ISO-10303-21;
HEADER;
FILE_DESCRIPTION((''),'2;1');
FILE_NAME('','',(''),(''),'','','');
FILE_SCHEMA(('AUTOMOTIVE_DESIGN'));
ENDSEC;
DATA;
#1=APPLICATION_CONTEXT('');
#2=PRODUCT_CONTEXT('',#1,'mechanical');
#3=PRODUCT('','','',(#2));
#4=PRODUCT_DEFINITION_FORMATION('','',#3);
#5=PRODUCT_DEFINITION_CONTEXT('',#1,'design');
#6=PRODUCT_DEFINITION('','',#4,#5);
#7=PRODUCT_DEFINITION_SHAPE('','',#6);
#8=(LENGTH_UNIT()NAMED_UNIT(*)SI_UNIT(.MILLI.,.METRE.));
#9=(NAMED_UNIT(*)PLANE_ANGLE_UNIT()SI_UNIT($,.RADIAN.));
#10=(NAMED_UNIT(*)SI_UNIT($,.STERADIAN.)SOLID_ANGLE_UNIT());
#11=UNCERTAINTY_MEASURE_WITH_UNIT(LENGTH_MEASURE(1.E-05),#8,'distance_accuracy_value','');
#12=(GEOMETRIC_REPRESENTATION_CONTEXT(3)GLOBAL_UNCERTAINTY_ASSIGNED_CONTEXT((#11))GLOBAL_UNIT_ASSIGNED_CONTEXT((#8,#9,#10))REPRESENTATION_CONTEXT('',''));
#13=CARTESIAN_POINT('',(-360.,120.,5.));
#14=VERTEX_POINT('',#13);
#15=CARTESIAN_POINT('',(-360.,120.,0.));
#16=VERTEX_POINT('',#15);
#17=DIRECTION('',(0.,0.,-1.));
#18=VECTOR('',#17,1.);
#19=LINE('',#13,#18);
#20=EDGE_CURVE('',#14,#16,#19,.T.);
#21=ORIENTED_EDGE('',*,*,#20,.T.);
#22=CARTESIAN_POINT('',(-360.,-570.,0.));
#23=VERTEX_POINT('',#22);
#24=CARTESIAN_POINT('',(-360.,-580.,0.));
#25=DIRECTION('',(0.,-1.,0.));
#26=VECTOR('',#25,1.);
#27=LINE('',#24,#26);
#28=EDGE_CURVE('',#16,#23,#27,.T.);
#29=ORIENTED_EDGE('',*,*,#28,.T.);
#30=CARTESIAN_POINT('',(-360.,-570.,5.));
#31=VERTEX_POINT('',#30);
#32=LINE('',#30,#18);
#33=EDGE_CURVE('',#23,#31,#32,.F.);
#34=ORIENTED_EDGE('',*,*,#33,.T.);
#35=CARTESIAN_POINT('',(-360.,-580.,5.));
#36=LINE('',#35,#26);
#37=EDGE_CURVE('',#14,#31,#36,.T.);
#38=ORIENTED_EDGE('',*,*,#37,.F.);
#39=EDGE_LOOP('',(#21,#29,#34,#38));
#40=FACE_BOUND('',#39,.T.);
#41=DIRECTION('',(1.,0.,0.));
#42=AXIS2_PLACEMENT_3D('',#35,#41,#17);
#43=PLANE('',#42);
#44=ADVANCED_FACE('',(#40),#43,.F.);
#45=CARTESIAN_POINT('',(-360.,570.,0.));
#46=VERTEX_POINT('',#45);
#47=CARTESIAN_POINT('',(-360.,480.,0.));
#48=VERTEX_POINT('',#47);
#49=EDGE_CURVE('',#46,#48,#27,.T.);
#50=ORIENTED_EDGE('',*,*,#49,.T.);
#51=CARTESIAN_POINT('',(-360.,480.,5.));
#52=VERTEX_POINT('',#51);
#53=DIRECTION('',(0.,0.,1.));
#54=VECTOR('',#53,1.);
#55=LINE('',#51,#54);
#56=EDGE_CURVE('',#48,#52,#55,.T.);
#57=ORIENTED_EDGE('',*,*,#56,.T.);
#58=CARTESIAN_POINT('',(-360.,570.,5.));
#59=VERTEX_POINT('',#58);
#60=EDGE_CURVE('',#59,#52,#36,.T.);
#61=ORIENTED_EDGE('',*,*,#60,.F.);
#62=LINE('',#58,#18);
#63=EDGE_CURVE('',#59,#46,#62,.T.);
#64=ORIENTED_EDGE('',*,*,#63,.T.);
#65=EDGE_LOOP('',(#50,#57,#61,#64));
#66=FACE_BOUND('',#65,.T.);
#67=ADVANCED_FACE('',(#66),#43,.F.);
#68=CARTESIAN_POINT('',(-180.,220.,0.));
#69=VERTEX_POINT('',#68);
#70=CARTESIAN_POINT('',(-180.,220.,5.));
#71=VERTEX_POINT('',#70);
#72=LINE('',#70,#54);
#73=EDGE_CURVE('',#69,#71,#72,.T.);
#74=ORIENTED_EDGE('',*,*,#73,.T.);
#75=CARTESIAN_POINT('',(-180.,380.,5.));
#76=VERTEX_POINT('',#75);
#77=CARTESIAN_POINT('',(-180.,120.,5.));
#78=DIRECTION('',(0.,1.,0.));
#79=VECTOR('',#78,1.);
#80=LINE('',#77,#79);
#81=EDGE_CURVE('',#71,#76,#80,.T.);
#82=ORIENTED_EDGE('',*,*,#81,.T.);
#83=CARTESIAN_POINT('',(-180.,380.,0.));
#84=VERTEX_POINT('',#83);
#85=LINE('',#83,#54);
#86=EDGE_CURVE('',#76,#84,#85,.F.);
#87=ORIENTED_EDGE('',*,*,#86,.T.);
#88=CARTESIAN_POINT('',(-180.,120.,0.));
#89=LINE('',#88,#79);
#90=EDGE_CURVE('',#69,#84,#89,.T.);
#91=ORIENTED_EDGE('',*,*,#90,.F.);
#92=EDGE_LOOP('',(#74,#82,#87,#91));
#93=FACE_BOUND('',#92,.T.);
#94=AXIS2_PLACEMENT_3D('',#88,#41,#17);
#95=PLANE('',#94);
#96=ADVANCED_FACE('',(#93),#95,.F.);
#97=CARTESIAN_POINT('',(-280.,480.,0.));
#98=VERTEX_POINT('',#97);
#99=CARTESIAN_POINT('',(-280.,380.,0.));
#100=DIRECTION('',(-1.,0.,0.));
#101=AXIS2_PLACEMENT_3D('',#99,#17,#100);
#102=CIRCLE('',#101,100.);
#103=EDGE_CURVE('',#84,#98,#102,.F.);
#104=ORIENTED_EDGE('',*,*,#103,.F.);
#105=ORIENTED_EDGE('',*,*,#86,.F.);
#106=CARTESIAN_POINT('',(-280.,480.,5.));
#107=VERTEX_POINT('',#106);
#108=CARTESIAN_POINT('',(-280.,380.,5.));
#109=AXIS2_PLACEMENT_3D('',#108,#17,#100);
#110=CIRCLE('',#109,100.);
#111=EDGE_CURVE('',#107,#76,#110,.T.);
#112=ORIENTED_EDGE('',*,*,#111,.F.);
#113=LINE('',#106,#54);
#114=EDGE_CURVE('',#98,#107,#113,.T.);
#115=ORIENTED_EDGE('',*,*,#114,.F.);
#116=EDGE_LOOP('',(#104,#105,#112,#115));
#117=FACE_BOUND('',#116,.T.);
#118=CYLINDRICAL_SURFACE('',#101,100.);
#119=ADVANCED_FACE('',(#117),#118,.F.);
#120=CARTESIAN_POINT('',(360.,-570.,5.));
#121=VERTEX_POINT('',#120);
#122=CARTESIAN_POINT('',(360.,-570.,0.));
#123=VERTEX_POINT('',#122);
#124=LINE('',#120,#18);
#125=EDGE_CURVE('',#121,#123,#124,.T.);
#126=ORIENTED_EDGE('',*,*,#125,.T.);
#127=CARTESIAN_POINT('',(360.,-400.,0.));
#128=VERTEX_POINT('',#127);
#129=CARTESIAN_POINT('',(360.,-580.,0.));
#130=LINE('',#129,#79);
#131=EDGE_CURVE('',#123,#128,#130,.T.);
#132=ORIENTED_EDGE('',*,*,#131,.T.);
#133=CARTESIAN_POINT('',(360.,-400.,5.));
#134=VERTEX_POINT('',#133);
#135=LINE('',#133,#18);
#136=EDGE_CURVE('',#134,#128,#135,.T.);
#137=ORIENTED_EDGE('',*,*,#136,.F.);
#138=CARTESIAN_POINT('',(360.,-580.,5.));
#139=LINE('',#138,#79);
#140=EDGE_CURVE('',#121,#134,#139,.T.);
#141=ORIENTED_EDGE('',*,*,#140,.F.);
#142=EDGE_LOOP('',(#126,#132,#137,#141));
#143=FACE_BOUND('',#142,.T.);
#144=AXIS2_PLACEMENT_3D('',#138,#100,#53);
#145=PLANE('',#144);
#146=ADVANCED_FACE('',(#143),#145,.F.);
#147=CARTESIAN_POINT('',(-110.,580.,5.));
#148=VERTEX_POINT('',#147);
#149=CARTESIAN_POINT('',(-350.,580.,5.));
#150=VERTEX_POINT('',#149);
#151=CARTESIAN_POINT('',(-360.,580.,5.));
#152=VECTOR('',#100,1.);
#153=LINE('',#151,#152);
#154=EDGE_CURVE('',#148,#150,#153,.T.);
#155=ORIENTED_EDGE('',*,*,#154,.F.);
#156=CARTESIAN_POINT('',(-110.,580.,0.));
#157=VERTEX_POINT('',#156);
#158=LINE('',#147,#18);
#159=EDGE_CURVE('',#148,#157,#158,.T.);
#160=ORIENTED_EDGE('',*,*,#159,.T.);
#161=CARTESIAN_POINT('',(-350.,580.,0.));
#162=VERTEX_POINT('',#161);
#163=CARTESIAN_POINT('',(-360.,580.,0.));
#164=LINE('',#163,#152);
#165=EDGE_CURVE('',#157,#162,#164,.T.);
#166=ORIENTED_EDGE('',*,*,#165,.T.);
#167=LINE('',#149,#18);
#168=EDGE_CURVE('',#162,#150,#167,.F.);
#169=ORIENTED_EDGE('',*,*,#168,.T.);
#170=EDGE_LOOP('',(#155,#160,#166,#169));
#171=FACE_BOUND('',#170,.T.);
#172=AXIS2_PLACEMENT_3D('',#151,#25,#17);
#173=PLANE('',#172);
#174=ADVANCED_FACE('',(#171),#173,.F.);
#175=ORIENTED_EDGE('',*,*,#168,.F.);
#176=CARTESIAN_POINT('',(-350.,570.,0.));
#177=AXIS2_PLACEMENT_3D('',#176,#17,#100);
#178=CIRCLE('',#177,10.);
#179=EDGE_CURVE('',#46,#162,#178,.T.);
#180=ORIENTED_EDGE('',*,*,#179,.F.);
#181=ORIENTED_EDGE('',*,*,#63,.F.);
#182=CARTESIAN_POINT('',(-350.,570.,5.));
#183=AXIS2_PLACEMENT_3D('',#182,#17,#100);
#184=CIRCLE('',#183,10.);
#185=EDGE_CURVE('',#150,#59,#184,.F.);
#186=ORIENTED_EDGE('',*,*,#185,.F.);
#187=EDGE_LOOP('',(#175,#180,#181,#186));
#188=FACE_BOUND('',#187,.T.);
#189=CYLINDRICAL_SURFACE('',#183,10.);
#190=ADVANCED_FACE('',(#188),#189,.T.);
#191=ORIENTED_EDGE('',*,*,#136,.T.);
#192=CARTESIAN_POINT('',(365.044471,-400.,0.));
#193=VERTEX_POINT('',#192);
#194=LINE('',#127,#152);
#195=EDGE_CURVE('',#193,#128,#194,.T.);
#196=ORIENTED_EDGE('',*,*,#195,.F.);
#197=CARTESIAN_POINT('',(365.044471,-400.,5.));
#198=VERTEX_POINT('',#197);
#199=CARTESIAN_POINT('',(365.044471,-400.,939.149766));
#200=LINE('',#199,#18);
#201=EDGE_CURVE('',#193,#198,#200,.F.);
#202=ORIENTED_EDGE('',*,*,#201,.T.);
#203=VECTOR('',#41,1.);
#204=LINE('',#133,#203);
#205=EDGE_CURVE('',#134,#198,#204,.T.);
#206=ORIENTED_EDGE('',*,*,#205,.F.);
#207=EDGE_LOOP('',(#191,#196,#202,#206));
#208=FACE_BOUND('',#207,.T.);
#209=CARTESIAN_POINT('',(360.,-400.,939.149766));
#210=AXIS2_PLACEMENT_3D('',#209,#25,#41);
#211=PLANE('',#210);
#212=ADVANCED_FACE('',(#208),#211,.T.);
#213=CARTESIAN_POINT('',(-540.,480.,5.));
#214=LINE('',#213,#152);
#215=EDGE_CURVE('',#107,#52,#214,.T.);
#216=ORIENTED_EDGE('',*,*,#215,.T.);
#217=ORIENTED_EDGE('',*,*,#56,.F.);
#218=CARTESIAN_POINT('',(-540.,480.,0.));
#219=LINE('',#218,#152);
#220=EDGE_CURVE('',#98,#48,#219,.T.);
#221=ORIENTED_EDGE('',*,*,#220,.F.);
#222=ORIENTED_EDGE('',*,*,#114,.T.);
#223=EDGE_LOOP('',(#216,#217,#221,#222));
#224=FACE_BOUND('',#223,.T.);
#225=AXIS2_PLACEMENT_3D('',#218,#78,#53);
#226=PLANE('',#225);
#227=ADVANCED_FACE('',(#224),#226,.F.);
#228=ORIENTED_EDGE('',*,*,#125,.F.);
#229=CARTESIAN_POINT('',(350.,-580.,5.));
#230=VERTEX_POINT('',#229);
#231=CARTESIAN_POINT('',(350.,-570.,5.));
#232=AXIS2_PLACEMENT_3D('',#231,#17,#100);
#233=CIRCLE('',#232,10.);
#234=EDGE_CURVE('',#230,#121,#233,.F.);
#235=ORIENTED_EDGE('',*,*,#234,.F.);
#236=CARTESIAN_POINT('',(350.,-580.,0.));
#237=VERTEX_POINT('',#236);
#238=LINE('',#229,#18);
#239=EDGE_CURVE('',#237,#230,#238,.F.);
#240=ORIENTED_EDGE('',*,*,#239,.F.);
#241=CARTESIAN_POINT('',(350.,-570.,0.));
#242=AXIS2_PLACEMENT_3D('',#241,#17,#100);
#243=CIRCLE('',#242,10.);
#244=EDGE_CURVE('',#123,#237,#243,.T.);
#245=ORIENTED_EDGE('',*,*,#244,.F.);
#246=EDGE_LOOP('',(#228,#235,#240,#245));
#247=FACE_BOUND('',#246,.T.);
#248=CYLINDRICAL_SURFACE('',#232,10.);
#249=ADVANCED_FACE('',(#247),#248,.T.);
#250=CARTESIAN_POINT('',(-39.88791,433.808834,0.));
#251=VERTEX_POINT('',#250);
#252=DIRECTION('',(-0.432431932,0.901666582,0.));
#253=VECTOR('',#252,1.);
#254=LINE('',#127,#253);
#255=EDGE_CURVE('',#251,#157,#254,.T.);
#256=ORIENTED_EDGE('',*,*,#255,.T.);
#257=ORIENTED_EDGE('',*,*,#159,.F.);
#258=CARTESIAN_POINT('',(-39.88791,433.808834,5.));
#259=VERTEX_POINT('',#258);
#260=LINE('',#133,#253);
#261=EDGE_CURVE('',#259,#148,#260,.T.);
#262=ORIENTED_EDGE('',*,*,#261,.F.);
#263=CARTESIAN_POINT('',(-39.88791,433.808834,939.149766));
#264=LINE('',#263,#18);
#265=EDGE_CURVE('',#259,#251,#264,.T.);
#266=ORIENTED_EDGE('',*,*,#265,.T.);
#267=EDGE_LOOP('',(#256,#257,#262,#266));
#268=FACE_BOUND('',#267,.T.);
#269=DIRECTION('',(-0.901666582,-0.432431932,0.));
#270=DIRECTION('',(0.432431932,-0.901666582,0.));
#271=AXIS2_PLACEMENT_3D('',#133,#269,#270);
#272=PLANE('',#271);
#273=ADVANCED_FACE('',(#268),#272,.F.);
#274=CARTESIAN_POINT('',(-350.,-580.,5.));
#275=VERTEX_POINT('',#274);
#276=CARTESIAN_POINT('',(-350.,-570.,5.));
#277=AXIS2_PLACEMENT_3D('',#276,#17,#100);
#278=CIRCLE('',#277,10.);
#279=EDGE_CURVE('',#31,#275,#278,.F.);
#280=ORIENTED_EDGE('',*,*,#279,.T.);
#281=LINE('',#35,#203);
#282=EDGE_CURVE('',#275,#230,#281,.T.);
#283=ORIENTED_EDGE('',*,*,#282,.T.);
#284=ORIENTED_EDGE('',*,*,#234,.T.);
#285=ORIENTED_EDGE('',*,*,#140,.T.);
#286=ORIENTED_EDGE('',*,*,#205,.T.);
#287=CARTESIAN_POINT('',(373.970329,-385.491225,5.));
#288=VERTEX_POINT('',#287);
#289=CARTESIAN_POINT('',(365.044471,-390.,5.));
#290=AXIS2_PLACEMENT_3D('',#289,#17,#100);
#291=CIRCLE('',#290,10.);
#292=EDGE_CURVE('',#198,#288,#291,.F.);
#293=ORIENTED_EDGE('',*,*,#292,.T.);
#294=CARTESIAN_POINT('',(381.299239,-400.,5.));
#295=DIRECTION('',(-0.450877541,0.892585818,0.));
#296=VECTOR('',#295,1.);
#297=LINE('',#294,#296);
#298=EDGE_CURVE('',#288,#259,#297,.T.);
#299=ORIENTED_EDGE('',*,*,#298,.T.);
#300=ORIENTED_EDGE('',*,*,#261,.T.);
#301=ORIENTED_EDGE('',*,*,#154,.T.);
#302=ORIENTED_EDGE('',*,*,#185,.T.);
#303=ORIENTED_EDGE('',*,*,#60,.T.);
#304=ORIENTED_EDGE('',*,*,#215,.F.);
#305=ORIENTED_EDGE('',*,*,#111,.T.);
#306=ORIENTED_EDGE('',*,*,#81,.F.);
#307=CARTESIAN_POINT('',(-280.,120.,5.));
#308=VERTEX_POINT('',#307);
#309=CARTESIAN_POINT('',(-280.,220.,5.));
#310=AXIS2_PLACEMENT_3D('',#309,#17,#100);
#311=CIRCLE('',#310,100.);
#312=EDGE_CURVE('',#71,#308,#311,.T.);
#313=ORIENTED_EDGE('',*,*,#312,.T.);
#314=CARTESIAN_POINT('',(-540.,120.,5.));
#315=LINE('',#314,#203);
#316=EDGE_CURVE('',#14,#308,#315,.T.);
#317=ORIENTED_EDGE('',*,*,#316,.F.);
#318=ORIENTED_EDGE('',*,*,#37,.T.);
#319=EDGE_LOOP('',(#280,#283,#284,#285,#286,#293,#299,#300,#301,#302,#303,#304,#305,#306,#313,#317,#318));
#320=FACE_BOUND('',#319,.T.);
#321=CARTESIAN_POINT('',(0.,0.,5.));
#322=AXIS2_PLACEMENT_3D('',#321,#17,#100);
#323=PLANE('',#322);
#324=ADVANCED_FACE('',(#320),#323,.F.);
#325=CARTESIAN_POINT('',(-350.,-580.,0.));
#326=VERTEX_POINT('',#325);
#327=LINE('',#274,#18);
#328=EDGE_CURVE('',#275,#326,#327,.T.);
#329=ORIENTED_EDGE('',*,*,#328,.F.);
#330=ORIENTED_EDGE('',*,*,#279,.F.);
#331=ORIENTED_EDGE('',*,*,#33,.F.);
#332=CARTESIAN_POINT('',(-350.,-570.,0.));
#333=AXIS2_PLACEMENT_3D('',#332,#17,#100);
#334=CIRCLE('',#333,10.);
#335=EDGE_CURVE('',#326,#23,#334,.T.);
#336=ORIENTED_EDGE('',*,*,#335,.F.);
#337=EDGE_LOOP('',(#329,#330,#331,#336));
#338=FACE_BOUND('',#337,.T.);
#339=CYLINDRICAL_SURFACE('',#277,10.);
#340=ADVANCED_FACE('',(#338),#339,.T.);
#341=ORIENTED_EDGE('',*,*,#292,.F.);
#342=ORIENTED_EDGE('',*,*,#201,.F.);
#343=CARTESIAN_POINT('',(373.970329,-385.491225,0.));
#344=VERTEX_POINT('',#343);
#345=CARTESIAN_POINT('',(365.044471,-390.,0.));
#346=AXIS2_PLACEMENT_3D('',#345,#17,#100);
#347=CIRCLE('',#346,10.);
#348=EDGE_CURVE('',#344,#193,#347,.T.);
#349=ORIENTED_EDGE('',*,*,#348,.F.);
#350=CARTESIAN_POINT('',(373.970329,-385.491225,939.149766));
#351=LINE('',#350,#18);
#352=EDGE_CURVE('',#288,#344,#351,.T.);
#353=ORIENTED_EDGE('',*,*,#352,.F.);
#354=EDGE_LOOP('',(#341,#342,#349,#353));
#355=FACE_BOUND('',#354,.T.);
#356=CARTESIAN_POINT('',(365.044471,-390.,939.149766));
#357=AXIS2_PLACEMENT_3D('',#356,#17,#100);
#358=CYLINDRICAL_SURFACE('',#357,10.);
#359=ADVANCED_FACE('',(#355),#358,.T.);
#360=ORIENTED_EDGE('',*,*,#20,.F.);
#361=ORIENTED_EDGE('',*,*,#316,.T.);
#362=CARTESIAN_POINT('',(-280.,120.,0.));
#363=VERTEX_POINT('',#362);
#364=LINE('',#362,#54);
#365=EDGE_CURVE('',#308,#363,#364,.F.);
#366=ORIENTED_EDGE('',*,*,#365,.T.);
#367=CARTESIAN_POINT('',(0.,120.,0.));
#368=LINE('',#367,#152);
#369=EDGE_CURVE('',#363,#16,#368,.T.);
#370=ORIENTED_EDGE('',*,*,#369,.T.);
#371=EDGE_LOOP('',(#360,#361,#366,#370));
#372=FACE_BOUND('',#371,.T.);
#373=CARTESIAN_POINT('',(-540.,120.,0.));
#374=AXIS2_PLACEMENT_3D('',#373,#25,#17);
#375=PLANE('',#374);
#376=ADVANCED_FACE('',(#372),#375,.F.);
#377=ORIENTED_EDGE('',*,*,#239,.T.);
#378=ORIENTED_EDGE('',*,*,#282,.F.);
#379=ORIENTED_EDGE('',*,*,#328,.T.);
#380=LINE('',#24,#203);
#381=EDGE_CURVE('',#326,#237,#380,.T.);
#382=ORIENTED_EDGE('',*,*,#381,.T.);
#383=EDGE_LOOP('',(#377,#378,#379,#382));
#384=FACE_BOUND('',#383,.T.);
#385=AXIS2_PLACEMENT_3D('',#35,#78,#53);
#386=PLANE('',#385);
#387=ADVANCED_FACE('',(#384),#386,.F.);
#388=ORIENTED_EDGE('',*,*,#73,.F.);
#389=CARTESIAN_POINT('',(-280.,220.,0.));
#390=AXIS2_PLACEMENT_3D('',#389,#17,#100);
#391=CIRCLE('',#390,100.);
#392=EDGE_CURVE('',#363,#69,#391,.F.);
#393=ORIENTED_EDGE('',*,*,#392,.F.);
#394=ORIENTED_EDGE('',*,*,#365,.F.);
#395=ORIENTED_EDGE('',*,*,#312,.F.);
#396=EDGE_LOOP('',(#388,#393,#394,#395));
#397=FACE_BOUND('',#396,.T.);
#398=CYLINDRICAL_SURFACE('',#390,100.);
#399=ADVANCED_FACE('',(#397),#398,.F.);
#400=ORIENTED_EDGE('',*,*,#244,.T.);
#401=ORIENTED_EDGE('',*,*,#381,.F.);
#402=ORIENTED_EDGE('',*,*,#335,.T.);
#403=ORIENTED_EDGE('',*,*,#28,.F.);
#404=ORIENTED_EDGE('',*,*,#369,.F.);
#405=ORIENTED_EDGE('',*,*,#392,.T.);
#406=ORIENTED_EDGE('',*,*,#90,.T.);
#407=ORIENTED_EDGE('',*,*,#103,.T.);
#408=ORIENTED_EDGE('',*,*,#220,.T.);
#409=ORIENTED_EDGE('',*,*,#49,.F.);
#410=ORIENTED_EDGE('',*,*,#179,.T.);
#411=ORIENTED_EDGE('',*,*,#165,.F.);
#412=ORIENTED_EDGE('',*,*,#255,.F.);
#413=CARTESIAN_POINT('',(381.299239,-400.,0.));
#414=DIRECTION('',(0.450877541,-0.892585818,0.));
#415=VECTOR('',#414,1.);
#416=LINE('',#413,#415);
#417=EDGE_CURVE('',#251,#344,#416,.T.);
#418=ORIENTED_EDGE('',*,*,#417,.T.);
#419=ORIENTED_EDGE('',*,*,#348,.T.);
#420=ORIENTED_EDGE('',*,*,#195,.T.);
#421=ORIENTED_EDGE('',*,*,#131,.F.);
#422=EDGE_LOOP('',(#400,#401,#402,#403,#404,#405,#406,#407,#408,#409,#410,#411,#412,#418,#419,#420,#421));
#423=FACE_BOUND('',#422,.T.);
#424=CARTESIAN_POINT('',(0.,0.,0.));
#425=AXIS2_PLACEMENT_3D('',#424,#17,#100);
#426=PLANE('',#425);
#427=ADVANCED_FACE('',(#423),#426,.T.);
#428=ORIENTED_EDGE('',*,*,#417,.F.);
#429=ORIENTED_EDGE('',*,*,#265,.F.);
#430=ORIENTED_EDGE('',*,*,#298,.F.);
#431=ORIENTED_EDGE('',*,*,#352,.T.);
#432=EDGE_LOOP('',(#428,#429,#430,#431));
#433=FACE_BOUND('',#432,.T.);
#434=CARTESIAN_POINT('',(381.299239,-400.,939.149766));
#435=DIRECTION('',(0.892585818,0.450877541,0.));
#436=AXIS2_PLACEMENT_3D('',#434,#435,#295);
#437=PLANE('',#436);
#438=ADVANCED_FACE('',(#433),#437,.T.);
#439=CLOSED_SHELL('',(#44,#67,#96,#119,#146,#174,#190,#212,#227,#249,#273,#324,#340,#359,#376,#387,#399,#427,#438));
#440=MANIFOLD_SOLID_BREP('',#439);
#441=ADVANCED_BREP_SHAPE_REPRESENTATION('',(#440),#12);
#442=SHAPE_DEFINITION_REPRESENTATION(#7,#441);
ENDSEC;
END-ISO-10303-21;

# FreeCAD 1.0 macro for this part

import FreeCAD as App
import Part
import Sketcher
Q = App.Units.Quantity


def edges_at(feature, points):
    """Names of the edges that pass closest to the given points."""
    edges = feature.Shape.Edges
    near = lambda p: min(range(len(edges)), key=lambda i: edges[i].distToShape(Part.Vertex(*p))[0])
    return sorted({f"Edge{near(p) + 1}" for p in points})

doc = App.newDocument("Part")
body = doc.addObject("PartDesign::Body", "Body")

# Sketch on XY plane
sketch1 = body.newObject("Sketcher::SketchObject", "Sketch")
sketch1.AttachmentSupport = (doc.getObject("XY_Plane"), [""])
sketch1.MapMode = "FlatFace"
sketch1.addGeometry([
    Part.LineSegment(App.Vector(-360, 580, 0), App.Vector(-360, -580, 0)),
    Part.LineSegment(App.Vector(-360, -580, 0), App.Vector(360, -580, 0)),
    Part.LineSegment(App.Vector(360, -580, 0), App.Vector(360, 580, 0)),
    Part.LineSegment(App.Vector(360, 580, 0), App.Vector(-360, 580, 0)),
], False)
sketch1.addConstraint([
    Sketcher.Constraint("Coincident", 0, 2, 1, 1),
    Sketcher.Constraint("Coincident", 1, 2, 2, 1),
    Sketcher.Constraint("Coincident", 2, 2, 3, 1),
    Sketcher.Constraint("Coincident", 3, 2, 0, 1),
    Sketcher.Constraint("Vertical", 0),
    Sketcher.Constraint("Horizontal", 1),
    Sketcher.Constraint("Vertical", 2),
    Sketcher.Constraint("Horizontal", 3),
    Sketcher.Constraint("Symmetric", 0, 2, 2, 2, -1, 1),
    Sketcher.Constraint("DistanceX", 1, 1, 1, 2, Q("720 mm")),
    Sketcher.Constraint("DistanceY", 0, 2, 0, 1, Q("1160 mm")),
])
pad1 = body.newObject("PartDesign::Pad", "Pad")
pad1.Profile = sketch1
pad1.Length = 5
doc.recompute()

fillet = body.newObject("PartDesign::Fillet", "Fillet")
fillet.Base = (pad1, edges_at(pad1, [
    (360, -580, 2.5),
    (-360, -580, 2.5),
    (-360, 580, 2.5),
    (360, 580, 2.5),
]))
fillet.Radius = 10

# Sketch on XY plane
sketch2 = body.newObject("Sketcher::SketchObject", "Sketch001")
sketch2.AttachmentSupport = (doc.getObject("XY_Plane"), [""])
sketch2.MapMode = "FlatFace"
sketch2.addGeometry([
    Part.LineSegment(App.Vector(360, -400, 0), App.Vector(-110, 580, 0)),
    Part.LineSegment(App.Vector(-110, 580, 0), App.Vector(360, 580, 0)),
    Part.LineSegment(App.Vector(360, 580, 0), App.Vector(360, -400, 0)),
], False)
sketch2.addConstraint([
    Sketcher.Constraint("Coincident", 0, 2, 1, 1),
    Sketcher.Constraint("Coincident", 1, 2, 2, 1),
    Sketcher.Constraint("Coincident", 2, 2, 0, 1),
    Sketcher.Constraint("Horizontal", 1),
    Sketcher.Constraint("Vertical", 2),
    Sketcher.Constraint("DistanceX", 1, 1, 1, 2, Q("470 mm")),
    Sketcher.Constraint("DistanceY", 2, 2, 2, 1, Q("980 mm")),
    Sketcher.Constraint("DistanceX", 0, 2, -1, 1, Q("110 mm")),
    Sketcher.Constraint("DistanceY", -1, 1, 0, 2, Q("580 mm")),
])
pocket1 = body.newObject("PartDesign::Pocket", "Pocket")
pocket1.Profile = sketch2
pocket1.Type = "ThroughAll"
pocket1.Reversed = True

# Sketch on XY plane
sketch3 = body.newObject("Sketcher::SketchObject", "Sketch002")
sketch3.AttachmentSupport = (doc.getObject("XY_Plane"), [""])
sketch3.MapMode = "FlatFace"
sketch3.AttachmentOffset = App.Placement(App.Vector(0, 0, 5), App.Rotation())
sketch3.addGeometry([
    Part.LineSegment(App.Vector(-540, 480, 0), App.Vector(-540, 120, 0)),
    Part.LineSegment(App.Vector(-540, 120, 0), App.Vector(-180, 120, 0)),
    Part.LineSegment(App.Vector(-180, 120, 0), App.Vector(-180, 480, 0)),
    Part.LineSegment(App.Vector(-180, 480, 0), App.Vector(-540, 480, 0)),
], False)
sketch3.addConstraint([
    Sketcher.Constraint("Coincident", 0, 2, 1, 1),
    Sketcher.Constraint("Coincident", 1, 2, 2, 1),
    Sketcher.Constraint("Coincident", 2, 2, 3, 1),
    Sketcher.Constraint("Coincident", 3, 2, 0, 1),
    Sketcher.Constraint("Vertical", 0),
    Sketcher.Constraint("Horizontal", 1),
    Sketcher.Constraint("Vertical", 2),
    Sketcher.Constraint("Horizontal", 3),
    Sketcher.Constraint("Equal", 3, 0),
    Sketcher.Constraint("DistanceX", 1, 1, 1, 2, Q("360 mm")),
    Sketcher.Constraint("DistanceX", 0, 2, -1, 1, Q("540 mm")),
    Sketcher.Constraint("DistanceY", -1, 1, 0, 2, Q("120 mm")),
])
pocket2 = body.newObject("PartDesign::Pocket", "Pocket001")
pocket2.Profile = sketch3
pocket2.Type = "ThroughAll"
doc.recompute()

fillet2 = body.newObject("PartDesign::Fillet", "Fillet001")
fillet2.Base = (pocket2, edges_at(pocket2, [(-180, 120, 2.5), (-180, 480, 2.5)]))
fillet2.Radius = 100

# Sketch on XY plane
sketch4 = body.newObject("Sketcher::SketchObject", "Sketch003")
sketch4.AttachmentSupport = (doc.getObject("XY_Plane"), [""])
sketch4.MapMode = "FlatFace"
sketch4.addGeometry([
    Part.LineSegment(App.Vector(381, -400, 0), App.Vector(360, -400, 0)),
    Part.LineSegment(App.Vector(360, -400, 0), App.Vector(-40, 434, 0)),
    Part.LineSegment(App.Vector(-40, 434, 0), App.Vector(381, -400, 0)),
], False)
sketch4.addConstraint([
    Sketcher.Constraint("Coincident", 0, 2, 1, 1),
    Sketcher.Constraint("Coincident", 1, 2, 2, 1),
    Sketcher.Constraint("Coincident", 2, 2, 0, 1),
    Sketcher.Constraint("Horizontal", 0),
    Sketcher.Constraint("DistanceX", -1, 1, 0, 2, Q("360 mm")),
    Sketcher.Constraint("DistanceY", 0, 2, -1, 1, Q("400 mm")),
    Sketcher.Constraint("Angle", 2, Q("-63.2 deg")),
    Sketcher.Constraint("DistanceX", 0, 2, 0, 1, Q("21.299239 mm")),
    Sketcher.Constraint("DistanceX", 1, 2, -1, 1, Q("39.88791 mm")),
])
pad2 = body.newObject("PartDesign::Pad", "Pad001")
pad2.Profile = sketch4
pad2.Length = 5
doc.recompute()

fillet3 = body.newObject("PartDesign::Fillet", "Fillet002")
fillet3.Base = (pad2, edges_at(pad2, [(381.299, -400, 2.5)]))
fillet3.Radius = 10

doc.recompute()
